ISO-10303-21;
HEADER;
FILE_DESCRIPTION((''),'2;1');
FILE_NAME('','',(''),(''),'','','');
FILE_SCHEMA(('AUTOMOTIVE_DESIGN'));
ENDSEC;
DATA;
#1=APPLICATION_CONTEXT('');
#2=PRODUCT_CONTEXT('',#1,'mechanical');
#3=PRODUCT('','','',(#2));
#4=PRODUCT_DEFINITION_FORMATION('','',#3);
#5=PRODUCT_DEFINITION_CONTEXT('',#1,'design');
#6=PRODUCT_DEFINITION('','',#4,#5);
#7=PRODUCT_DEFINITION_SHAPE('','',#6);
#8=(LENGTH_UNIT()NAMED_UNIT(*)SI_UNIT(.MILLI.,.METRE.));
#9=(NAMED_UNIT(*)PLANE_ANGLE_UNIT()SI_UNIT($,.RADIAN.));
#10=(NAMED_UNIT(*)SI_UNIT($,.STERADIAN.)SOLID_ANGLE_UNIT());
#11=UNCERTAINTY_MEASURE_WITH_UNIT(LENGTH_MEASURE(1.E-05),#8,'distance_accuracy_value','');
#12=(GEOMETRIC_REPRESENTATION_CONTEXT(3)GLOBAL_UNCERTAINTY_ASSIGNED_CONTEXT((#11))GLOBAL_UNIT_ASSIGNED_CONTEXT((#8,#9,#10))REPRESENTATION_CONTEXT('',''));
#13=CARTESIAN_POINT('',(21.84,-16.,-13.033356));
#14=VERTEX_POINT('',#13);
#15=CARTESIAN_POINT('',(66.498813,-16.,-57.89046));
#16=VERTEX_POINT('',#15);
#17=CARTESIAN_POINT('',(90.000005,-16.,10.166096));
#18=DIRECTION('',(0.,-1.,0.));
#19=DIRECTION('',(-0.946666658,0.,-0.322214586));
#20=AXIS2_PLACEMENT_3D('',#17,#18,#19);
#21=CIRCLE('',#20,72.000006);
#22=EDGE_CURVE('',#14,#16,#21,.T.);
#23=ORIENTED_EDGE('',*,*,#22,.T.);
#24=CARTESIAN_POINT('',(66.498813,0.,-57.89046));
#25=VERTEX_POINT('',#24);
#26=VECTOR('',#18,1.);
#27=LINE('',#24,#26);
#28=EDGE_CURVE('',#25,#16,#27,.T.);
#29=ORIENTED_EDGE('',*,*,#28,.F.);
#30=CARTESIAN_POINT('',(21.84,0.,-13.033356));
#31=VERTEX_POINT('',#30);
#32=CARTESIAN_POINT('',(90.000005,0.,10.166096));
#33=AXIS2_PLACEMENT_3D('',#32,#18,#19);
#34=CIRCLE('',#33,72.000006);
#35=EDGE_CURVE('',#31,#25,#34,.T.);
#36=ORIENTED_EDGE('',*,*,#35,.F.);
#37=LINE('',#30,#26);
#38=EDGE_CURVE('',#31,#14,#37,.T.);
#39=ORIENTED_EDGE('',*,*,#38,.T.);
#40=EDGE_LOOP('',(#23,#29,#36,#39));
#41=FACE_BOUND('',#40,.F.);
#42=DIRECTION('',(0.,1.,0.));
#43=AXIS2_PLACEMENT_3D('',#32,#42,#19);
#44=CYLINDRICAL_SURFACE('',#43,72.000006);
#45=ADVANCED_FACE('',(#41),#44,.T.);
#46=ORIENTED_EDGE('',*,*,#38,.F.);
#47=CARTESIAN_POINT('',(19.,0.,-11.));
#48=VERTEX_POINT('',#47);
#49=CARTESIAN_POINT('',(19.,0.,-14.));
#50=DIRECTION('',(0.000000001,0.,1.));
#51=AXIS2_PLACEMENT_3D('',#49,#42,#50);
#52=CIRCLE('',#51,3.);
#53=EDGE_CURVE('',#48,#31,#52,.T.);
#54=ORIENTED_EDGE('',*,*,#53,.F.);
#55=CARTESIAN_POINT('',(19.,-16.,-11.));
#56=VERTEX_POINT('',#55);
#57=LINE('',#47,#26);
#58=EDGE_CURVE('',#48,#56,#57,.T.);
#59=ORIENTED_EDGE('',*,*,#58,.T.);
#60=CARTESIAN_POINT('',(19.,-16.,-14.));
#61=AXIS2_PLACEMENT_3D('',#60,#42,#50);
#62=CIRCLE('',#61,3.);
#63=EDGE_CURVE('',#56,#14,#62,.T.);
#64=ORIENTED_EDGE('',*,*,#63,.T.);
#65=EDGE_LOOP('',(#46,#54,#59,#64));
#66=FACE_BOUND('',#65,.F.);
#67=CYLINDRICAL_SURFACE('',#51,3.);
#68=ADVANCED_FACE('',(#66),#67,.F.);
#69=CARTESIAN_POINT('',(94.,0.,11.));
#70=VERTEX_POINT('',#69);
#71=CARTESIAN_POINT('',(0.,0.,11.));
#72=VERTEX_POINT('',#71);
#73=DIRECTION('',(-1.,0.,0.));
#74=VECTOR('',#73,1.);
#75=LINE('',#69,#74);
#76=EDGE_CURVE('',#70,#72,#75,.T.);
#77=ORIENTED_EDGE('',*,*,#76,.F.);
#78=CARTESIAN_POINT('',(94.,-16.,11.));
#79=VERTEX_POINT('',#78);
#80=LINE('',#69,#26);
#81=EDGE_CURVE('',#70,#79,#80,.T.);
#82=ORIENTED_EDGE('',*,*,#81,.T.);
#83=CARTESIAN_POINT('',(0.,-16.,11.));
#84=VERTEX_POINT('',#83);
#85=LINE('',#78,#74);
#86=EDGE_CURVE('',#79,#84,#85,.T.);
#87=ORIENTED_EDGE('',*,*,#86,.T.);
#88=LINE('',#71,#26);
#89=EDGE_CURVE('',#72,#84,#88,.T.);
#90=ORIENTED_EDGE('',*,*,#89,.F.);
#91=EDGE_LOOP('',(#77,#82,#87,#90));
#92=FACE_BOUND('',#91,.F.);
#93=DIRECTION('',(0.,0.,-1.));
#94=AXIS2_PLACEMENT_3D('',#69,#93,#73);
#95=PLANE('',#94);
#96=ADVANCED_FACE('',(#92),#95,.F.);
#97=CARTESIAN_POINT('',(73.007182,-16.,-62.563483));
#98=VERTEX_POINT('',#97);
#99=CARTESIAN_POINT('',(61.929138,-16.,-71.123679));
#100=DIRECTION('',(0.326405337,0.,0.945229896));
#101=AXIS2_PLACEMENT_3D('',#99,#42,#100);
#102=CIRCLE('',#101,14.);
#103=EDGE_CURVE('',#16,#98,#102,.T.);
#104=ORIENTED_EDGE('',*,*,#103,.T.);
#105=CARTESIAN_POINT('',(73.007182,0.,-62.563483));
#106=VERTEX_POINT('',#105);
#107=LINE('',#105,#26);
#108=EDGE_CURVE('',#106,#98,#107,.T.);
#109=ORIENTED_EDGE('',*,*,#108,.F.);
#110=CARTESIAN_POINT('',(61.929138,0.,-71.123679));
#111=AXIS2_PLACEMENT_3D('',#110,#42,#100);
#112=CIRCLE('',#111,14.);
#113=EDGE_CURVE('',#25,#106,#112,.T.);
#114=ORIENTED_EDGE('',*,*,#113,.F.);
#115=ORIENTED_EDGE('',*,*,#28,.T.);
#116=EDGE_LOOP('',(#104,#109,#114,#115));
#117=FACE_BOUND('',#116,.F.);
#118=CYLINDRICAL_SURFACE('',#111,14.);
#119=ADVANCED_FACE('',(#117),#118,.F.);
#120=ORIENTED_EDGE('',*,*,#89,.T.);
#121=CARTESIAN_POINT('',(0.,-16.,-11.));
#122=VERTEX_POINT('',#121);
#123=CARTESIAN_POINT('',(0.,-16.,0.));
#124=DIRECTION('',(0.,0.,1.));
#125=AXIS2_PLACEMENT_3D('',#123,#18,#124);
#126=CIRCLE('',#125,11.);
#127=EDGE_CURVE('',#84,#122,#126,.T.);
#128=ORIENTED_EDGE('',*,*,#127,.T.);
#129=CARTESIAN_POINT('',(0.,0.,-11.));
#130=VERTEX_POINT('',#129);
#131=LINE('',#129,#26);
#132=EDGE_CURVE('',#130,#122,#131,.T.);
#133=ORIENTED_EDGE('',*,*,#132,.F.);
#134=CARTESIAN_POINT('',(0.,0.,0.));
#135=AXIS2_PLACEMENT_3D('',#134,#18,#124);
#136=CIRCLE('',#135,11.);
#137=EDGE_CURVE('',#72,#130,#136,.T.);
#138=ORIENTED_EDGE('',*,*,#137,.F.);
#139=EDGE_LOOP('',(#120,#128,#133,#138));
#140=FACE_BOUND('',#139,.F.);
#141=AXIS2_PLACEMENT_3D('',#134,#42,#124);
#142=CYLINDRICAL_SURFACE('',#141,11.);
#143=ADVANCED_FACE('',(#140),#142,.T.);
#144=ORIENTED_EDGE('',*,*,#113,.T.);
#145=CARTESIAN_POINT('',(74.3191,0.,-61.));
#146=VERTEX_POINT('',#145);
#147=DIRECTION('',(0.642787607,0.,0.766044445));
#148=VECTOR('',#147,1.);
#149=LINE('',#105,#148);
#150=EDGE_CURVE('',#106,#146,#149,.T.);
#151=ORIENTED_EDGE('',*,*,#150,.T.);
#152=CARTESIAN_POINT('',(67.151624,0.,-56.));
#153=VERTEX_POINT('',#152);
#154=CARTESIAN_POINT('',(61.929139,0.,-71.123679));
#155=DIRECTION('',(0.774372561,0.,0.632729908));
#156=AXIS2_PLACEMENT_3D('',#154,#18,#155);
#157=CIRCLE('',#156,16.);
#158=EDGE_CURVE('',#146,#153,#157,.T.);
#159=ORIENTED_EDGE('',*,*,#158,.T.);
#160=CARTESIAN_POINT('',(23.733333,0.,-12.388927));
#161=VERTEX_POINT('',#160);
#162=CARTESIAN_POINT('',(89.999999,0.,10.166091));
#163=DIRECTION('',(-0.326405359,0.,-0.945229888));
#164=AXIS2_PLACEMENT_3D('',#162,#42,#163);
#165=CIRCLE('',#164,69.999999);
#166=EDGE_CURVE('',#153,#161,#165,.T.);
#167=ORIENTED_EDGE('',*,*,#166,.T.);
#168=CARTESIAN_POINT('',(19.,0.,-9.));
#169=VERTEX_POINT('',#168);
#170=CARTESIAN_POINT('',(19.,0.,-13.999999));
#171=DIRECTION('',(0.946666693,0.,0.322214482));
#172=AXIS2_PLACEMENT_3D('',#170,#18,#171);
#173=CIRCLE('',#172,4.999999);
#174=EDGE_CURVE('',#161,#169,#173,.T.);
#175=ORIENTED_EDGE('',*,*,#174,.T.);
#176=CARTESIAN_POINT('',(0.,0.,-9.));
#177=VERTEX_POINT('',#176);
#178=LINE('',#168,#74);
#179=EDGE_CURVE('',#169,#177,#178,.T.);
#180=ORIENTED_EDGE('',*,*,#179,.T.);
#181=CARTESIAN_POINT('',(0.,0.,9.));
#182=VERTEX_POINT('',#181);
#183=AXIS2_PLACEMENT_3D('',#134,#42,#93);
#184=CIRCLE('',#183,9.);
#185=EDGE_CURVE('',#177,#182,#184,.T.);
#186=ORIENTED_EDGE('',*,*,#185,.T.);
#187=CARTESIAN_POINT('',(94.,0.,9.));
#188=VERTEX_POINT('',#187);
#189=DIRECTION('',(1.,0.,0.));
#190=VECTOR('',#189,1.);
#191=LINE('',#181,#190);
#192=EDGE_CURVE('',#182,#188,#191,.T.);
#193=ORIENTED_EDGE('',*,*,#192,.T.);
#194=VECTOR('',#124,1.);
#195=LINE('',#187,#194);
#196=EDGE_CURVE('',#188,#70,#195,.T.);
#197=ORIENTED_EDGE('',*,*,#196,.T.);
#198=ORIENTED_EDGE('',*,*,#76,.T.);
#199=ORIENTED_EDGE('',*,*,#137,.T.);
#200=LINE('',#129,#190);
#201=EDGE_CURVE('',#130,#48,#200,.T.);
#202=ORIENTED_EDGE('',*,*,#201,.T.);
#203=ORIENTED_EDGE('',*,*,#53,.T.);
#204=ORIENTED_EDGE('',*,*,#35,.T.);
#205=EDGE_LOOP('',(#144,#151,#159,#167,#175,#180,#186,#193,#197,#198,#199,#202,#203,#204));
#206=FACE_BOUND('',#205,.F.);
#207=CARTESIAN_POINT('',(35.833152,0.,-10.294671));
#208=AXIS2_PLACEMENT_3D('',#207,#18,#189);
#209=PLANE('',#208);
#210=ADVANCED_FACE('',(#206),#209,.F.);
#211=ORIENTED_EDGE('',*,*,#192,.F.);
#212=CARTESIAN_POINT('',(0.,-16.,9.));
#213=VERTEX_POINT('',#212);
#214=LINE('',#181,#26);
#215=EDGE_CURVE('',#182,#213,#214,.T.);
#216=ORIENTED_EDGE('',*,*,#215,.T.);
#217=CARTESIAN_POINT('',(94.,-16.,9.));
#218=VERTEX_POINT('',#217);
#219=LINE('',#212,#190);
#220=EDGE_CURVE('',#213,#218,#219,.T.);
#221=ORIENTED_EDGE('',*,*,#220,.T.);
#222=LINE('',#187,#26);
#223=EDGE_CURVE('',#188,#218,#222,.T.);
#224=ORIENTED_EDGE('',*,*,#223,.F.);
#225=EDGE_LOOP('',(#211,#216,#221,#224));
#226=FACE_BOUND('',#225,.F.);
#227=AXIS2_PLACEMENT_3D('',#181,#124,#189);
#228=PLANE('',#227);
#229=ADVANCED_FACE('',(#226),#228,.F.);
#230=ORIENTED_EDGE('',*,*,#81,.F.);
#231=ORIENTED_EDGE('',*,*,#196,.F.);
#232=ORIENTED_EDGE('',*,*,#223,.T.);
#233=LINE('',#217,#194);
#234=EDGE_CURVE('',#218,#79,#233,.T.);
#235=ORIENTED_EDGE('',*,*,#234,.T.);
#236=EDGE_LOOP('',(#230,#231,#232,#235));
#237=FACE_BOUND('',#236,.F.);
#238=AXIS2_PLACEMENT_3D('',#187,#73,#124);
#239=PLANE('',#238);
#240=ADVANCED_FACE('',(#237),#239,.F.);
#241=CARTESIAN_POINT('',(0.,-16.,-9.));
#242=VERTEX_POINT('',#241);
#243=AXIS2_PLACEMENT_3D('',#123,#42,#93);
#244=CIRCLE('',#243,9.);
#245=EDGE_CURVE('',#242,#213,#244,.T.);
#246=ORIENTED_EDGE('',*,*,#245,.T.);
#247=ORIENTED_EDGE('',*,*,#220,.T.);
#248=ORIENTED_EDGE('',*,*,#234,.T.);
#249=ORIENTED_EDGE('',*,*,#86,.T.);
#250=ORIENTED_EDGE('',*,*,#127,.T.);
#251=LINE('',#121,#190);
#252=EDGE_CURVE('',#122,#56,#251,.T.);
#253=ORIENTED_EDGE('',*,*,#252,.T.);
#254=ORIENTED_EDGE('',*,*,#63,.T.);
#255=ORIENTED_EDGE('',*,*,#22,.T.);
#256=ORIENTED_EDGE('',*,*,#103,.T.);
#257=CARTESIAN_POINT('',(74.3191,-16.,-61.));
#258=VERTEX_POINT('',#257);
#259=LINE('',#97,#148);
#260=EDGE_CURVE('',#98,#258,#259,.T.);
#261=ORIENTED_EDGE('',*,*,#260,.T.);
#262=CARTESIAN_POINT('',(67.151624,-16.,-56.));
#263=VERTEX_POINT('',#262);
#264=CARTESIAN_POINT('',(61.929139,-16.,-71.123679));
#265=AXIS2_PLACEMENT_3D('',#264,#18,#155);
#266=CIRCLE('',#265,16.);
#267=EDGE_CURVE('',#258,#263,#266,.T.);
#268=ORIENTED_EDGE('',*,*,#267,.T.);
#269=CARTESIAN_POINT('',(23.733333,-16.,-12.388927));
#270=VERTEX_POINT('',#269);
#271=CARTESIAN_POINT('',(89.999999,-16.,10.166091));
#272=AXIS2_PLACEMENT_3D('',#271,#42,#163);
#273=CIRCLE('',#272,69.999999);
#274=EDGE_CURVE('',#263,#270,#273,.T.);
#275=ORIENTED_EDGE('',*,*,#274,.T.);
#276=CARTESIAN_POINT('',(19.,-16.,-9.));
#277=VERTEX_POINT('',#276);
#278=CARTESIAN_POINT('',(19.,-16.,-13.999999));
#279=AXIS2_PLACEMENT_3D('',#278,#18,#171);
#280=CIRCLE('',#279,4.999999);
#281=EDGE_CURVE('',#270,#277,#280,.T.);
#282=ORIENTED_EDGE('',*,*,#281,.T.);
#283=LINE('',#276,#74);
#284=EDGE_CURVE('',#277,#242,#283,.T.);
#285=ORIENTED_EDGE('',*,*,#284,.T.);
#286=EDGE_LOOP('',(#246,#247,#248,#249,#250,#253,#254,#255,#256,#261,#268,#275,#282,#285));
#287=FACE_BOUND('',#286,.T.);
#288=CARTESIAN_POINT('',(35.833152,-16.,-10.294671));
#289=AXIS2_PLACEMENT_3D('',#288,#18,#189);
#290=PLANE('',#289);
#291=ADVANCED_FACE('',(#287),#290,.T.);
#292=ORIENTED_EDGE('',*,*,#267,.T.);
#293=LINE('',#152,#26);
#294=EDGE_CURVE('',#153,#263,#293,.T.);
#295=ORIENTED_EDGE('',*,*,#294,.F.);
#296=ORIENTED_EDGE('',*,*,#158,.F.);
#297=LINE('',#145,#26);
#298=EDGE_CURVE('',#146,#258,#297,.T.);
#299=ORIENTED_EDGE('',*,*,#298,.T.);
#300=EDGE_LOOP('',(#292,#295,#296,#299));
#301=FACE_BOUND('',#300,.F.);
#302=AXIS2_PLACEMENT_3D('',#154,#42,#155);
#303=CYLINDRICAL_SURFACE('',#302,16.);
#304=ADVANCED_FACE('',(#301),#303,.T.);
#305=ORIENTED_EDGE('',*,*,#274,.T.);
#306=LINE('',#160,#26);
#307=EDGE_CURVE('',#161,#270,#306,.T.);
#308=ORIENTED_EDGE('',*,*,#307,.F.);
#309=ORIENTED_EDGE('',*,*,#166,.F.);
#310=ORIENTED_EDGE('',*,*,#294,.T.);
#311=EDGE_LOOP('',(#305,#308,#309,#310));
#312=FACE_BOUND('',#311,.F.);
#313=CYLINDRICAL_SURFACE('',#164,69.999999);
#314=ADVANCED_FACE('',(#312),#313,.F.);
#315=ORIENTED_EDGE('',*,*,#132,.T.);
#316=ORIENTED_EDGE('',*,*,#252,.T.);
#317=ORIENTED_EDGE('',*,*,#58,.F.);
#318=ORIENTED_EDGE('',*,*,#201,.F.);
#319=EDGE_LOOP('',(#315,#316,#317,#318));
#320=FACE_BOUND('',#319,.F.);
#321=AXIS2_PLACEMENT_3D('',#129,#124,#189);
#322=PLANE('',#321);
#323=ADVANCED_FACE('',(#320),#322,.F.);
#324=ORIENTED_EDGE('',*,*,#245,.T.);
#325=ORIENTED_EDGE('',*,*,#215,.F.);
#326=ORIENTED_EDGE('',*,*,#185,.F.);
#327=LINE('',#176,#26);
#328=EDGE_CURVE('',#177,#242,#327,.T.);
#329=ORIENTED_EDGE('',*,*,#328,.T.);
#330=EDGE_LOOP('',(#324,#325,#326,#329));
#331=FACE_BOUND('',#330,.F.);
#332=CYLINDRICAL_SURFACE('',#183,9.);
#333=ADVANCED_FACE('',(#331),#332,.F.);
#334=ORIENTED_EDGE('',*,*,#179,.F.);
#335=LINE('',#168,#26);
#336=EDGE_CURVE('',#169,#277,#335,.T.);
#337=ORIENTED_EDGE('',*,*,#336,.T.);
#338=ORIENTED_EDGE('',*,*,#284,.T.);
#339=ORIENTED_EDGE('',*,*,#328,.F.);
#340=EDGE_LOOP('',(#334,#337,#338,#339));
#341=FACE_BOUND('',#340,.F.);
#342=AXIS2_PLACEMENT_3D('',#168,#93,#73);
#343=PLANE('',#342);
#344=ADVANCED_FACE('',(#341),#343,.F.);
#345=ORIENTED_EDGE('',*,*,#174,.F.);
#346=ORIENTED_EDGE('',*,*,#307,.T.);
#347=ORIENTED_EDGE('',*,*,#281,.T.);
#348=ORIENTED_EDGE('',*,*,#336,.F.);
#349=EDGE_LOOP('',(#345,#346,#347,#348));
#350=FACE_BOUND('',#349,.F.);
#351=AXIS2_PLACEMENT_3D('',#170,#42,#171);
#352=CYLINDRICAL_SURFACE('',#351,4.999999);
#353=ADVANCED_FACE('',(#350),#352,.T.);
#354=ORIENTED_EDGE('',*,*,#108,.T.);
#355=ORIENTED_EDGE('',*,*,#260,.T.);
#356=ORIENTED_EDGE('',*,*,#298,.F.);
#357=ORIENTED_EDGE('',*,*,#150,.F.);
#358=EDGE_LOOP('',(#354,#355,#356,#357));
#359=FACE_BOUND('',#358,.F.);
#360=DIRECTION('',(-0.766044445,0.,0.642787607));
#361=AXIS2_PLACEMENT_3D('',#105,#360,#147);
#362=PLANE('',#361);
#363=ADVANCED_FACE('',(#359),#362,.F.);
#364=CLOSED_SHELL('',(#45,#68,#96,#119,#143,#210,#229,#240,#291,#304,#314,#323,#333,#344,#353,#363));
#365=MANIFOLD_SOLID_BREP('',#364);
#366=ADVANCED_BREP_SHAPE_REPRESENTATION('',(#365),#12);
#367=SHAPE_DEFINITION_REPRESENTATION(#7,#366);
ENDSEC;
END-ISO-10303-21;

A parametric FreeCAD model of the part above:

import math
import FreeCAD as App
import Part
import Sketcher
from FreeCAD import Vector
Q = App.Units.Quantity

doc = App.newDocument("Part")
body = doc.addObject("PartDesign::Body", "Body")

# Sketch on XZ plane
sketch1 = body.newObject("Sketcher::SketchObject", "Sketch")
sketch1.AttachmentSupport = (doc.getObject("XZ_Plane"), [""])
sketch1.MapMode = "FlatFace"
sketch1.addGeometry(Part.ArcOfCircle(Part.Circle(Vector(0, 0, 0), Vector(0, 0, 1), 9), math.radians(90), math.radians(270)), False)
sketch1.addGeometry(Part.LineSegment(Vector(0, 9, 0), Vector(94, 9, 0)), False)
sketch1.addGeometry(Part.LineSegment(Vector(94, 9, 0), Vector(94, 11, 0)), False)
sketch1.addGeometry(Part.LineSegment(Vector(94, 11, 0), Vector(0, 11, 0)), False)
sketch1.addGeometry(Part.ArcOfCircle(Part.Circle(Vector(0, 0, 0), Vector(0, 0, 1), 11), math.radians(90), math.radians(270)), False)
sketch1.addGeometry(Part.LineSegment(Vector(0, -11, 0), Vector(19, -11, 0)), False)
sketch1.addGeometry(Part.ArcOfCircle(Part.Circle(Vector(19, -14, 0), Vector(0, 0, 1), 3), math.radians(18.796914), math.radians(90)), False)
sketch1.addGeometry(Part.ArcOfCircle(Part.Circle(Vector(90.000005, 10.166096, 0), Vector(0, 0, 1), 72.000006), math.radians(-161.203093), math.radians(-109.050743)), False)
sketch1.addGeometry(Part.ArcOfCircle(Part.Circle(Vector(61.929138, -71.123679, 0), Vector(0, 0, 1), 14), math.radians(37.693881), math.radians(70.949261)), False)
sketch1.addGeometry(Part.LineSegment(Vector(73.007182, -62.563483, 0), Vector(74.3191, -61, 0)), False)
sketch1.addGeometry(Part.ArcOfCircle(Part.Circle(Vector(61.929139, -71.123679, 0), Vector(0, 0, 1), 16), math.radians(39.251819), math.radians(70.949262)), False)
sketch1.addGeometry(Part.ArcOfCircle(Part.Circle(Vector(89.999999, 10.166091, 0), Vector(0, 0, 1), 69.999999), math.radians(-161.203096), math.radians(-109.05074)), False)
sketch1.addGeometry(Part.ArcOfCircle(Part.Circle(Vector(19, -13.999999, 0), Vector(0, 0, 1), 4.999999), math.radians(18.7969), math.radians(90.000004)), False)
sketch1.addGeometry(Part.LineSegment(Vector(19, -9, 0), Vector(0, -9, 0)), False)
sketch1.addConstraint(Sketcher.Constraint("Tangent", 0, 1, 1, 1))
sketch1.addConstraint(Sketcher.Constraint("Coincident", 1, 2, 2, 1))
sketch1.addConstraint(Sketcher.Constraint("Coincident", 2, 2, 3, 1))
sketch1.addConstraint(Sketcher.Constraint("Tangent", 3, 2, 4, 1))
sketch1.addConstraint(Sketcher.Constraint("Tangent", 4, 2, 5, 1))
sketch1.addConstraint(Sketcher.Constraint("Tangent", 5, 2, 6, 2))
sketch1.addConstraint(Sketcher.Constraint("Tangent", 6, 1, 7, 1))
sketch1.addConstraint(Sketcher.Constraint("Tangent", 7, 2, 8, 2))
sketch1.addConstraint(Sketcher.Constraint("Coincident", 8, 1, 9, 1))
sketch1.addConstraint(Sketcher.Constraint("Coincident", 9, 2, 10, 1))
sketch1.addConstraint(Sketcher.Constraint("Tangent", 10, 2, 11, 2))
sketch1.addConstraint(Sketcher.Constraint("Tangent", 11, 1, 12, 1))
sketch1.addConstraint(Sketcher.Constraint("Tangent", 12, 2, 13, 1))
sketch1.addConstraint(Sketcher.Constraint("Tangent", 13, 2, 0, 2))
sketch1.addConstraint(Sketcher.Constraint("Horizontal", 1))
sketch1.addConstraint(Sketcher.Constraint("Vertical", 2))
sketch1.addConstraint(Sketcher.Constraint("Horizontal", 3))
sketch1.addConstraint(Sketcher.Constraint("Horizontal", 5))
sketch1.addConstraint(Sketcher.Constraint("Horizontal", 13))
sketch1.addConstraint(Sketcher.Constraint("Coincident", 0, 3, -1, 1))
sketch1.addConstraint(Sketcher.Constraint("Coincident", 4, 3, -1, 1))
sketch1.addConstraint(Sketcher.Constraint("Coincident", 10, 3, 8, 3))
sketch1.addConstraint(Sketcher.Constraint("Coincident", 11, 3, 7, 3))
sketch1.addConstraint(Sketcher.Constraint("Coincident", 12, 3, 6, 3))
sketch1.addConstraint(Sketcher.Constraint("Radius", 0, 9.0))
sketch1.addConstraint(Sketcher.Constraint("Radius", 4, 11.0))
sketch1.addConstraint(Sketcher.Constraint("Radius", 6, 3.0))
sketch1.addConstraint(Sketcher.Constraint("Radius", 8, 14.0))
sketch1.addConstraint(Sketcher.Constraint("Radius", 11, 69.999999))
sketch1.addConstraint(Sketcher.Constraint("DistanceX", 1, 1, 1, 2, 94.0))
sketch1.addConstraint(Sketcher.Constraint("DistanceX", 5, 1, 5, 2, 19.0))
sketch1.addConstraint(Sketcher.Constraint("Angle", 9, Q("50 deg")))
sketch1.addConstraint(Sketcher.Constraint("DistanceX", -1, 1, 11, 3, 89.999999))
sketch1.addConstraint(Sketcher.Constraint("DistanceY", 9, 2, -1, 1, 61.0))
sketch1.addConstraint(Sketcher.Constraint("DistanceY", 10, 2, -1, 1, 56.0))
pad1 = body.newObject("PartDesign::Pad", "Pad")
pad1.Profile = sketch1
pad1.Length = 16

doc.recompute()
